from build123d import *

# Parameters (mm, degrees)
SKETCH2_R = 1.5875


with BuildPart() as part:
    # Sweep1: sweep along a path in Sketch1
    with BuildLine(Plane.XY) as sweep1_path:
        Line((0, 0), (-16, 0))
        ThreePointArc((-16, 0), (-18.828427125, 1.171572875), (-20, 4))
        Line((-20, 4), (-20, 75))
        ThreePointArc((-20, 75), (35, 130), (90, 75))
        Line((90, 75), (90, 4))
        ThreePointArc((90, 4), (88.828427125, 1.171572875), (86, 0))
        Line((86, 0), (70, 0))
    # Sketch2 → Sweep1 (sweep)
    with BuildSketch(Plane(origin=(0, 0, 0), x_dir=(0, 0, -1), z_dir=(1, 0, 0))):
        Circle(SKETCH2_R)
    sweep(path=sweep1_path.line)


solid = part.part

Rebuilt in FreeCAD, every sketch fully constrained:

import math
import FreeCAD as App
import Part
import Sketcher

V = App.Vector

doc = App.newDocument("Part")
body = doc.addObject("PartDesign::Body", "Body")

sketch1 = body.newObject("Sketcher::SketchObject", "Sketch")
sketch1.AttachmentSupport = (doc.getObject("YZ_Plane"), [""])
sketch1.MapMode = "FlatFace"
sketch1.addGeometry(Part.Circle(V(0, 0, 0), V(0, 0, 1), 1.6), False)
sketch1.addConstraint([
    Sketcher.Constraint("Coincident", 0, 3, -1, 1),
    Sketcher.Constraint("Diameter", 0, 3.175),
])

sketch2 = body.newObject("Sketcher::SketchObject", "Sketch001")
sketch2.AttachmentSupport = (doc.getObject("XY_Plane"), [""])
sketch2.MapMode = "FlatFace"
sketch2.addGeometry([
    Part.LineSegment(V(0, 0, 0), V(-16, 0, 0)),
    Part.ArcOfCircle(Part.Circle(V(-16, 4, 0), V(0, 0, 1), 4), math.radians(180), math.radians(270)),
    Part.LineSegment(V(-20, 4, 0), V(-20, 75, 0)),
    Part.ArcOfCircle(Part.Circle(V(35, 75, 0), V(0, 0, 1), 55), math.radians(0), math.radians(180)),
    Part.LineSegment(V(90, 75, 0), V(90, 4, 0)),
    Part.ArcOfCircle(Part.Circle(V(86, 4, 0), V(0, 0, 1), 4), math.radians(-90), math.radians(0)),
    Part.LineSegment(V(86, 0, 0), V(70, 0, 0)),
], False)
sketch2.addConstraint([
    Sketcher.Constraint("Tangent", 0, 2, 1, 2),
    Sketcher.Constraint("Tangent", 1, 1, 2, 1),
    Sketcher.Constraint("Tangent", 2, 2, 3, 2),
    Sketcher.Constraint("Tangent", 3, 1, 4, 1),
    Sketcher.Constraint("Tangent", 4, 2, 5, 2),
    Sketcher.Constraint("Tangent", 5, 1, 6, 1),
    Sketcher.Constraint("Horizontal", 0),
    Sketcher.Constraint("Vertical", 2),
    Sketcher.Constraint("Vertical", 4),
    Sketcher.Constraint("Horizontal", 6),
    Sketcher.Constraint("Coincident", 0, 1, -1, 1),
    Sketcher.Constraint("Equal", 1, 5),
    Sketcher.Constraint("PointOnObject", 5, 1, -1),
    Sketcher.Constraint("Equal", 0, 6),
    Sketcher.Constraint("Radius", 1, 4.0),
    Sketcher.Constraint("Radius", 3, 55.0),
    Sketcher.Constraint("DistanceX", 0, 2, 0, 1, 16.0),
    Sketcher.Constraint("DistanceY", 2, 1, 2, 2, 71.0),
])
doc.recompute()

additivepipe = body.newObject("PartDesign::AdditivePipe", "AdditivePipe")
additivepipe.Profile = sketch1
additivepipe.Spine = (sketch2, ["Edge1", "Edge2", "Edge3", "Edge4", "Edge5", "Edge6", "Edge7"])

doc.recompute()
